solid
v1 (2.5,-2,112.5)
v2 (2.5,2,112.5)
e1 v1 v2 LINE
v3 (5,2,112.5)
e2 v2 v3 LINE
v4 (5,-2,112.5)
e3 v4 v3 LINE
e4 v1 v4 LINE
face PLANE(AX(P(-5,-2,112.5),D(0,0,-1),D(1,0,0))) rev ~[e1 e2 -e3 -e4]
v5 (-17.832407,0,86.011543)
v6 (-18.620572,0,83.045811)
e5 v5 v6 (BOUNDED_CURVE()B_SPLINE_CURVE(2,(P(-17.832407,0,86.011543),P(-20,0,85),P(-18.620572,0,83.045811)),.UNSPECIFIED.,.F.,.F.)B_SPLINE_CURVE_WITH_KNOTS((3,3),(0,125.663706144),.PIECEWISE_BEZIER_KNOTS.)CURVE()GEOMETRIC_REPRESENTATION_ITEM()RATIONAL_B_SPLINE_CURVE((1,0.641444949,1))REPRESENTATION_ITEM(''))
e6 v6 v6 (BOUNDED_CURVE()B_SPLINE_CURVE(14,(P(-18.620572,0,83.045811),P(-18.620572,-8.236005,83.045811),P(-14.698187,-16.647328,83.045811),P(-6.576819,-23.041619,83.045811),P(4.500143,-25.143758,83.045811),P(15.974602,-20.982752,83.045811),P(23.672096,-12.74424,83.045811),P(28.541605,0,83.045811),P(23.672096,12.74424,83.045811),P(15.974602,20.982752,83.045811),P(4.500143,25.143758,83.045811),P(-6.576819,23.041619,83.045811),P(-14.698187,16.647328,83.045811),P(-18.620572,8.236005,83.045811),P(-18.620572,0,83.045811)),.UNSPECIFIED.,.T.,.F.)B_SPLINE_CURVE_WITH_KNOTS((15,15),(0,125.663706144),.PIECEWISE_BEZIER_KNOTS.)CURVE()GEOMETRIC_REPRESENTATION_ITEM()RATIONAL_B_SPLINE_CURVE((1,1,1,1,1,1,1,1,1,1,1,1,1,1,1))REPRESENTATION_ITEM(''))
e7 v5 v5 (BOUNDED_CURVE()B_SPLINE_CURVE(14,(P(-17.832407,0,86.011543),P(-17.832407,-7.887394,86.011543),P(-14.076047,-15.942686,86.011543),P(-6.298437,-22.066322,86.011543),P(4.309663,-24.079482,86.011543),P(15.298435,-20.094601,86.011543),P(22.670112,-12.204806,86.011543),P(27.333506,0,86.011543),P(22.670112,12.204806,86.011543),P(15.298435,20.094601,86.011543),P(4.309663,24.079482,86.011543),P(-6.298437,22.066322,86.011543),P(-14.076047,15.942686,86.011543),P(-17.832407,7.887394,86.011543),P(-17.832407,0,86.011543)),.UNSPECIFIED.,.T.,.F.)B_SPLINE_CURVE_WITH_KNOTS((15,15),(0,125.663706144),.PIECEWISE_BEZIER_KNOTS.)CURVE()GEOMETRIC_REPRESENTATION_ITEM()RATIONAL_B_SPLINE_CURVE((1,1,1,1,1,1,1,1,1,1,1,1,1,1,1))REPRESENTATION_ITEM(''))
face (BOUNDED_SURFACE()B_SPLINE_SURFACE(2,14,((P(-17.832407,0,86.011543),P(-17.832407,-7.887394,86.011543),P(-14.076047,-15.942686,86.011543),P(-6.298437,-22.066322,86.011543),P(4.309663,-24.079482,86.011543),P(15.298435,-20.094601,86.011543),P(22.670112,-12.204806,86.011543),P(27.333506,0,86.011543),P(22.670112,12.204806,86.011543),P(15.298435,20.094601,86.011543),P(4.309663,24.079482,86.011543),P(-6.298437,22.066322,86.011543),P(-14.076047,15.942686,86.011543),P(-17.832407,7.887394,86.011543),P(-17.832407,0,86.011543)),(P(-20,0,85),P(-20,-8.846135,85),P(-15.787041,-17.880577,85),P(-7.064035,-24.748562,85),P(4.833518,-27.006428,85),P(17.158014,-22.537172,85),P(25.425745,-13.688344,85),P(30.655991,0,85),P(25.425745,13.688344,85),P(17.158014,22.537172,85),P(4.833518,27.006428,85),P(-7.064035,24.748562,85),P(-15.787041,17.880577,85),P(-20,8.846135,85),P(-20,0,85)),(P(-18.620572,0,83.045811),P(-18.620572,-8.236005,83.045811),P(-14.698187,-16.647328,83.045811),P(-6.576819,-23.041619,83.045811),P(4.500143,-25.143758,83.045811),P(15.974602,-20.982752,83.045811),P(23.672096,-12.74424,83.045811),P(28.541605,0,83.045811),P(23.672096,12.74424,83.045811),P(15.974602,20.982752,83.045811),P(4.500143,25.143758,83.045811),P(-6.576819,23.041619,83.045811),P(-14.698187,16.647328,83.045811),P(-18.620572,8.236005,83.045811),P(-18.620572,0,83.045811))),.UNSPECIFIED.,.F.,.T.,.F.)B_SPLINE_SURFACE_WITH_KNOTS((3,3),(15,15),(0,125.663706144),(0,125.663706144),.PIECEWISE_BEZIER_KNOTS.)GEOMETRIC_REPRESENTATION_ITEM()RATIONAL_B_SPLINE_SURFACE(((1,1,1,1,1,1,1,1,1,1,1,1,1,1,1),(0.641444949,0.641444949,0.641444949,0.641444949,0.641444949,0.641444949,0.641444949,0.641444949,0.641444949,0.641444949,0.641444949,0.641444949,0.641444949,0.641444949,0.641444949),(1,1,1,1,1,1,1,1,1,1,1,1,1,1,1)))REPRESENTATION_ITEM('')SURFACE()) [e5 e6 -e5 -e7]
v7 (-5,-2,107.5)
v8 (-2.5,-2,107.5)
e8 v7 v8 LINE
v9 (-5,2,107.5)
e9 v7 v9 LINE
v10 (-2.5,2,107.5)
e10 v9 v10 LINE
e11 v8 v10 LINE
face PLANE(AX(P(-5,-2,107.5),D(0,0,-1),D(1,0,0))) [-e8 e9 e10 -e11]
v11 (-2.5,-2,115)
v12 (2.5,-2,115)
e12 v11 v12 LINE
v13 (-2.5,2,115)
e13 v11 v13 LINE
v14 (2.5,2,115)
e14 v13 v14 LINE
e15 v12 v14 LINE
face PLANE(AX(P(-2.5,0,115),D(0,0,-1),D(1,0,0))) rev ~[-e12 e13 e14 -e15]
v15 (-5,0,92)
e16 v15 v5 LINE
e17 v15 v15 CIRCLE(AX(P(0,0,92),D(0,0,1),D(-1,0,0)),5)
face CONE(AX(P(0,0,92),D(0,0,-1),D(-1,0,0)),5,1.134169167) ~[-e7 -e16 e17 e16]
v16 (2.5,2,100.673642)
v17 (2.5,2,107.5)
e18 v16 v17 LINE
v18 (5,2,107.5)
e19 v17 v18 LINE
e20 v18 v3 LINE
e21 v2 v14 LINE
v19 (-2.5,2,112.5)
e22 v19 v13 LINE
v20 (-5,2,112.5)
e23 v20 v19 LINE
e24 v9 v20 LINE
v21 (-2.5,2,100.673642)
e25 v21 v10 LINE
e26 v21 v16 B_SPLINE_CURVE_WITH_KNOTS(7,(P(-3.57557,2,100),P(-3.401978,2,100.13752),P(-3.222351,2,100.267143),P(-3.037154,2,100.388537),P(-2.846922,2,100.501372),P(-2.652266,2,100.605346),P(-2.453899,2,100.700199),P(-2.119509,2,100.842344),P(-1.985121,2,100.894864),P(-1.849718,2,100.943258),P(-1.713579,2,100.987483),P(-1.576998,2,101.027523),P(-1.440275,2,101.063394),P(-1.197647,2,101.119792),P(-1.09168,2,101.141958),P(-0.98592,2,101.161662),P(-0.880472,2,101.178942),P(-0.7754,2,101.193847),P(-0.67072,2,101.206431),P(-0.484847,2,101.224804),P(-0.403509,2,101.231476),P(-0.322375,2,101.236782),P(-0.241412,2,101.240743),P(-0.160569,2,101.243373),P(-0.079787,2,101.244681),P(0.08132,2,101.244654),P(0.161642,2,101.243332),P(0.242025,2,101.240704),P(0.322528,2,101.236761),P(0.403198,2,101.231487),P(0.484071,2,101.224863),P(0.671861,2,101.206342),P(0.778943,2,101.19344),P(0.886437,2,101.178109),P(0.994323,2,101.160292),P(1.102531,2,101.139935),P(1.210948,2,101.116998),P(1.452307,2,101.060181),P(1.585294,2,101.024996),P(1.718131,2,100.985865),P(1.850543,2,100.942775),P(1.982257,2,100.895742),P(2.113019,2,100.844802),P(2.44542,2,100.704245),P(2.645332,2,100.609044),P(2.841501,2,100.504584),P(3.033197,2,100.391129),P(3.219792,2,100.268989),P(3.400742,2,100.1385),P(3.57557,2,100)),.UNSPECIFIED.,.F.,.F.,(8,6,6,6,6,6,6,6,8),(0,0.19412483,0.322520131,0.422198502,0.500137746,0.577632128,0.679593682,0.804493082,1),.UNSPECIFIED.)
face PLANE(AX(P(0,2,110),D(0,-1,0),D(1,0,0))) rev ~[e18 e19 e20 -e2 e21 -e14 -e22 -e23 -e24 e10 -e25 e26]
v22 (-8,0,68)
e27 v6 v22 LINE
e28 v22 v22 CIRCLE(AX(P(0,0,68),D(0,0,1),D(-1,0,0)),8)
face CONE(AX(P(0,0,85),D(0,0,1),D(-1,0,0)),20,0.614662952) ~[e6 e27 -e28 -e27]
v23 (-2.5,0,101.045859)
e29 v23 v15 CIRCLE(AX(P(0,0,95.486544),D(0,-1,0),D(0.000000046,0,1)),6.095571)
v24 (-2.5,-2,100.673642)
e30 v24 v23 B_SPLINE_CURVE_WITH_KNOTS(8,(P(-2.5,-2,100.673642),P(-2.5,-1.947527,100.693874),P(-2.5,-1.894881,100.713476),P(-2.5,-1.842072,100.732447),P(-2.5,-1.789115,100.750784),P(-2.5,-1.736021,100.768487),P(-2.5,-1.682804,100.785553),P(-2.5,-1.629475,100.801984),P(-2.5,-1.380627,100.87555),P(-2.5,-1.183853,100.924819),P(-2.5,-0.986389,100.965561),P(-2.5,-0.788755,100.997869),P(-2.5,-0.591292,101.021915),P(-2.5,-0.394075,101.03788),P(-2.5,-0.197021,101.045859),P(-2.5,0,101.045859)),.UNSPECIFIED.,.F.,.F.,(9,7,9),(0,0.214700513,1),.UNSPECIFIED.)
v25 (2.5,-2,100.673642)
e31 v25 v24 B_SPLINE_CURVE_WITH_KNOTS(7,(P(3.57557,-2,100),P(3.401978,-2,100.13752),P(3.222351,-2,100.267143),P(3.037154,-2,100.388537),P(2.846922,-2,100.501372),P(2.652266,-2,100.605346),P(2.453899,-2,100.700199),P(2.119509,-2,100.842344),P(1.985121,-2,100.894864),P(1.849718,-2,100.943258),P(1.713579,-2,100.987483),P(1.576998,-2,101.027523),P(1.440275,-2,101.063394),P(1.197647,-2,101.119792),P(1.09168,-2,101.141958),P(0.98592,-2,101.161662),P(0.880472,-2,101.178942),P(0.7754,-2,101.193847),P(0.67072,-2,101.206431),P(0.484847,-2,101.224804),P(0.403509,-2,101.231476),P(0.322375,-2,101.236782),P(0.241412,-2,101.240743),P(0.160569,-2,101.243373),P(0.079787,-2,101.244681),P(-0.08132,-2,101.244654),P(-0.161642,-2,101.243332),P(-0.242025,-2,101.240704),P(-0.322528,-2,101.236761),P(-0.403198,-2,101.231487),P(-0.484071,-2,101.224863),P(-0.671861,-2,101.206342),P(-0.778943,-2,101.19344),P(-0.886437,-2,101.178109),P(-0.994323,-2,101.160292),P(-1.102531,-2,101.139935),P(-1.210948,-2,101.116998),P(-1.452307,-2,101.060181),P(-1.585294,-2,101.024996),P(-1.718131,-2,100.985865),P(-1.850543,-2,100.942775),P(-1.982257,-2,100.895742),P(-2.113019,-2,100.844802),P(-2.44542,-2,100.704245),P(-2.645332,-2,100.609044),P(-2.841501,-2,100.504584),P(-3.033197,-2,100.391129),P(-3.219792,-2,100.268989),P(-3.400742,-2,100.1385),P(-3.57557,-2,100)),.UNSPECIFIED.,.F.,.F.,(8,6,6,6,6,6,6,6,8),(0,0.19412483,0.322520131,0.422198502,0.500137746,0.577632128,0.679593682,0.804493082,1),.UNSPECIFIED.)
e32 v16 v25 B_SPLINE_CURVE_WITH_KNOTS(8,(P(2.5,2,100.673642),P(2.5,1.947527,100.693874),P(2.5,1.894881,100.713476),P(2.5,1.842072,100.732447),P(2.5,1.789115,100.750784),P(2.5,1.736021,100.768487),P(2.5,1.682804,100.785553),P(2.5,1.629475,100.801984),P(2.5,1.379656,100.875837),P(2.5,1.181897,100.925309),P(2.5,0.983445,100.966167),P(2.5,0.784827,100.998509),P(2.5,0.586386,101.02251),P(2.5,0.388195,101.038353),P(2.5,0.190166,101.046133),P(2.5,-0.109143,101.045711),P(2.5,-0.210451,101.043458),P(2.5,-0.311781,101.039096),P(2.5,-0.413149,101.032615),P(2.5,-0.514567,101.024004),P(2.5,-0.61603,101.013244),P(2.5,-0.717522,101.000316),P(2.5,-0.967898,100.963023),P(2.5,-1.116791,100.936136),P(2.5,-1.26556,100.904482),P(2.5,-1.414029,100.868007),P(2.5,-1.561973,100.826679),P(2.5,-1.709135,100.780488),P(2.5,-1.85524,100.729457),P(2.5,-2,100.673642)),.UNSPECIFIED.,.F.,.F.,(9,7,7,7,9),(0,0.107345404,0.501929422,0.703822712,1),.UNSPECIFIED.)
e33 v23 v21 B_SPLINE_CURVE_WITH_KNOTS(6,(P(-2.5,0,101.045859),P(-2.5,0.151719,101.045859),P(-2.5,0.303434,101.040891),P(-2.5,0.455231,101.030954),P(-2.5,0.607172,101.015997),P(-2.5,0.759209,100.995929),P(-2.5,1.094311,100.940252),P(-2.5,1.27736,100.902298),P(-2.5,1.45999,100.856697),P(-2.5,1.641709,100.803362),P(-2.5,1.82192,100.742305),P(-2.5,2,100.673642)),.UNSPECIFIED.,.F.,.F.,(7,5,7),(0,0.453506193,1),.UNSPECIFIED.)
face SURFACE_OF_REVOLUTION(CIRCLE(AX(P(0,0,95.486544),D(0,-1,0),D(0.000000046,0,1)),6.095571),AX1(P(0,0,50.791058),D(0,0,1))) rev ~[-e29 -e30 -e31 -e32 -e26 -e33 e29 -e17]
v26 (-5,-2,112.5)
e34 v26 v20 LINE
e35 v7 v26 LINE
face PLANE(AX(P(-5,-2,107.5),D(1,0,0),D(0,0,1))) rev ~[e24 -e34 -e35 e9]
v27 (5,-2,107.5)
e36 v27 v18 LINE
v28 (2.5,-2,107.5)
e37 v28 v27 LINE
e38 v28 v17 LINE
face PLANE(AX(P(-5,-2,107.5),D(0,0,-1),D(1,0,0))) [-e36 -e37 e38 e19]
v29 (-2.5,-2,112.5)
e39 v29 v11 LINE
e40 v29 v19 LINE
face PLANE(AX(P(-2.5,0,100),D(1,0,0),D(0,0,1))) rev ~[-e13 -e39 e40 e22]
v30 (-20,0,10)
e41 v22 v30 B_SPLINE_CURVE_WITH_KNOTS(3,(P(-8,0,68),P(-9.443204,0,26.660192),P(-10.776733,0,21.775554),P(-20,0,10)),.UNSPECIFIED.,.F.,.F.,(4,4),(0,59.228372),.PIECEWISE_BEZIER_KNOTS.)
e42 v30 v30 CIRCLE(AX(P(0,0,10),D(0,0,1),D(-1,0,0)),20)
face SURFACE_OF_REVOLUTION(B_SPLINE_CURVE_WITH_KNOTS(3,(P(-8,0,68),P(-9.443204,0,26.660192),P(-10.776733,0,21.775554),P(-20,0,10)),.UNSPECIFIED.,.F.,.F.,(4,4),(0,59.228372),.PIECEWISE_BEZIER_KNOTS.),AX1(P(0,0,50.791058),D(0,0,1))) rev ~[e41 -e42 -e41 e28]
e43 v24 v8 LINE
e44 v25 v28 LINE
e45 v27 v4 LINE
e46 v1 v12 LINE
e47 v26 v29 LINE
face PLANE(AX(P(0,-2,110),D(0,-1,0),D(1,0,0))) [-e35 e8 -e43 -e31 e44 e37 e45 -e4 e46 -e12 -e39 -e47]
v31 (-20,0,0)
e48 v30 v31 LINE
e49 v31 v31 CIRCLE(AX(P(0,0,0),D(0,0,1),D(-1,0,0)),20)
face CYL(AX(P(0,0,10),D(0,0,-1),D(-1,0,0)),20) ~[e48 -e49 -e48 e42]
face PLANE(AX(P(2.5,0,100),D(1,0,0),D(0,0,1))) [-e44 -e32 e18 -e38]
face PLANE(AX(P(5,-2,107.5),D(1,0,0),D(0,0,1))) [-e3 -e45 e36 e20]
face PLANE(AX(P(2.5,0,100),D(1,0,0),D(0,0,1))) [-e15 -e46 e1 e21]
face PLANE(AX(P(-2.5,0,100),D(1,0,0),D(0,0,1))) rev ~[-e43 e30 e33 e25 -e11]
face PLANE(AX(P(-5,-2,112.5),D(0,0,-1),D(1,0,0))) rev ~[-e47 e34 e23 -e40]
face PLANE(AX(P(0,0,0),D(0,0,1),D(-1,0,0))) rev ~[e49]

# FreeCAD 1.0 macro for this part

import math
import FreeCAD as App
import Part
import Sketcher
from FreeCAD import Vector
Q = App.Units.Quantity


def edges_at(feature, points):
    """Names of the edges that pass closest to the given points."""
    edges = feature.Shape.Edges
    near = lambda p: min(range(len(edges)), key=lambda i: edges[i].distToShape(Part.Vertex(*p))[0])
    return sorted({f"Edge{near(p) + 1}" for p in points})

doc = App.newDocument("Part")
body = doc.addObject("PartDesign::Body", "Body")

# Sketch on XZ plane
sketch1 = doc.addObject("Sketcher::SketchObject", "Sketch")
body.addObject(sketch1)
sketch1.AttachmentSupport = (doc.XZ_Plane, [""])
sketch1.MapMode = "FlatFace"
sketch1.addGeometry(Part.LineSegment(Vector(-2, 115, 0), Vector(-2, 100, 0)), False)
sketch1.addGeometry(Part.LineSegment(Vector(-2, 100, 0), Vector(2, 100, 0)), False)
sketch1.addGeometry(Part.LineSegment(Vector(2, 100, 0), Vector(2, 115, 0)), False)
sketch1.addGeometry(Part.LineSegment(Vector(2, 115, 0), Vector(-2, 115, 0)), False)
sketch1.addConstraint(Sketcher.Constraint("Coincident", 0, 2, 1, 1))
sketch1.addConstraint(Sketcher.Constraint("Coincident", 1, 2, 2, 1))
sketch1.addConstraint(Sketcher.Constraint("Coincident", 2, 2, 3, 1))
sketch1.addConstraint(Sketcher.Constraint("Coincident", 3, 2, 0, 1))
sketch1.addConstraint(Sketcher.Constraint("Vertical", 0))
sketch1.addConstraint(Sketcher.Constraint("Horizontal", 1))
sketch1.addConstraint(Sketcher.Constraint("Vertical", 2))
sketch1.addConstraint(Sketcher.Constraint("Horizontal", 3))
sketch1.addConstraint(Sketcher.Constraint("DistanceX", 1, 1, 1, 2, Q("5 mm")))
sketch1.addConstraint(Sketcher.Constraint("DistanceY", 0, 2, 0, 1, Q("15 mm")))
sketch1.addConstraint(Sketcher.Constraint("DistanceY", -1, 1, 0, 2, Q("100 mm")))
sketch1.addConstraint(Sketcher.Constraint("DistanceX", 0, 2, -1, 1, Q("2.5 mm")))
pad1 = doc.addObject("PartDesign::Pad", "Pad")
body.addObject(pad1)
pad1.Profile = sketch1
pad1.Type = "TwoLengths"
pad1.Length = 2
pad1.Length2 = 2

# Sketch on XZ plane
sketch2 = doc.addObject("Sketcher::SketchObject", "Sketch001")
body.addObject(sketch2)
sketch2.AttachmentSupport = (doc.XZ_Plane, [""])
sketch2.MapMode = "FlatFace"
sketch2.AttachmentOffset = App.Placement(Vector(0, 0, 2), App.Rotation())
sketch2.addGeometry(Part.LineSegment(Vector(-5, 112, 0), Vector(-5, 108, 0)), False)
sketch2.addGeometry(Part.LineSegment(Vector(-5, 108, 0), Vector(5, 108, 0)), False)
sketch2.addGeometry(Part.LineSegment(Vector(5, 108, 0), Vector(5, 112, 0)), False)
sketch2.addGeometry(Part.LineSegment(Vector(5, 112, 0), Vector(-5, 112, 0)), False)
sketch2.addConstraint(Sketcher.Constraint("Coincident", 0, 2, 1, 1))
sketch2.addConstraint(Sketcher.Constraint("Coincident", 1, 2, 2, 1))
sketch2.addConstraint(Sketcher.Constraint("Coincident", 2, 2, 3, 1))
sketch2.addConstraint(Sketcher.Constraint("Coincident", 3, 2, 0, 1))
sketch2.addConstraint(Sketcher.Constraint("Vertical", 0))
sketch2.addConstraint(Sketcher.Constraint("Horizontal", 1))
sketch2.addConstraint(Sketcher.Constraint("Vertical", 2))
sketch2.addConstraint(Sketcher.Constraint("Horizontal", 3))
sketch2.addConstraint(Sketcher.Constraint("DistanceX", 1, 1, 1, 2, Q("10 mm")))
sketch2.addConstraint(Sketcher.Constraint("DistanceY", 0, 2, 0, 1, Q("5 mm")))
sketch2.addConstraint(Sketcher.Constraint("DistanceX", 0, 2, -1, 1, Q("5 mm")))
sketch2.addConstraint(Sketcher.Constraint("DistanceY", -1, 1, 0, 2, Q("107.5 mm")))
pad2 = doc.addObject("PartDesign::Pad", "Pad001")
body.addObject(pad2)
pad2.Profile = sketch2
pad2.Length = 4
pad2.Reversed = True

# Sketch on XZ plane
sketch3 = doc.addObject("Sketcher::SketchObject", "Sketch002")
body.addObject(sketch3)
sketch3.AttachmentSupport = (doc.XZ_Plane, [""])
sketch3.MapMode = "FlatFace"
sketch3.addGeometry(Part.ArcOfCircle(Part.Circle(Vector(0, 95.486544, 0), Vector(0, 0, 1), 6.095571), math.radians(89.999997), math.radians(214.888404)), False)
sketch3.addGeometry(Part.LineSegment(Vector(-5, 92, 0), Vector(-20, 85, 0)), False)
sketch3.addGeometry(Part.LineSegment(Vector(-20, 85, 0), Vector(-8, 68, 0)), False)
sketch3.addGeometry(Part.BSplineCurve([Vector(-8, 68, 0), Vector(-9.443204, 26.660192, 0), Vector(-10.776733, 21.775554, 0), Vector(-20, 10, 0)], [4, 4], [0, 59.228372], False, 3, [1, 1, 1, 1], False), False)
sketch3.addGeometry(Part.LineSegment(Vector(-20, 10, 0), Vector(-20, 0, 0)), False)
sketch3.addGeometry(Part.LineSegment(Vector(-20, 0, 0), Vector(0, 0, 0)), False)
sketch3.addGeometry(Part.LineSegment(Vector(0, 0, 0), Vector(0, 101.582115, 0)), False)
sketch3.addConstraint(Sketcher.Constraint("Block", 3))
sketch3.addConstraint(Sketcher.Constraint("Coincident", 0, 2, 1, 1))
sketch3.addConstraint(Sketcher.Constraint("Coincident", 1, 2, 2, 1))
sketch3.addConstraint(Sketcher.Constraint("Coincident", 2, 2, 3, 1))
sketch3.addConstraint(Sketcher.Constraint("Coincident", 3, 2, 4, 1))
sketch3.addConstraint(Sketcher.Constraint("Coincident", 4, 2, 5, 1))
sketch3.addConstraint(Sketcher.Constraint("Coincident", 5, 2, 6, 1))
sketch3.addConstraint(Sketcher.Constraint("Coincident", 6, 2, 0, 1))
sketch3.addConstraint(Sketcher.Constraint("Vertical", 4))
sketch3.addConstraint(Sketcher.Constraint("Horizontal", 5))
sketch3.addConstraint(Sketcher.Constraint("Vertical", 6))
sketch3.addConstraint(Sketcher.Constraint("Coincident", 5, 2, -1, 1))
sketch3.addConstraint(Sketcher.Constraint("PointOnObject", 0, 3, -2))
sketch3.addConstraint(Sketcher.Constraint("Vertical", 1, 2, 4, 2))
sketch3.addConstraint(Sketcher.Constraint("DistanceX", 0, 2, -1, 1, Q("5 mm")))
sketch3.addConstraint(Sketcher.Constraint("DistanceY", -1, 1, 0, 2, Q("92 mm")))
sketch3.addConstraint(Sketcher.Constraint("DistanceY", -1, 1, 1, 2, Q("85 mm")))
sketch3.addConstraint(Sketcher.Constraint("Radius", 0, Q("6.095571 mm")))
revolution = doc.addObject("PartDesign::Revolution", "Revolution")
body.addObject(revolution)
revolution.Profile = sketch3
revolution.ReferenceAxis = (sketch3, ["V_Axis"])
revolution.Angle = 360
doc.recompute()

fillet = doc.addObject("PartDesign::Fillet", "Fillet")
body.addObject(fillet)
fillet.Base = (revolution, edges_at(revolution, [(20, 0, 85)]))
fillet.Radius = 2

doc.recompute()
